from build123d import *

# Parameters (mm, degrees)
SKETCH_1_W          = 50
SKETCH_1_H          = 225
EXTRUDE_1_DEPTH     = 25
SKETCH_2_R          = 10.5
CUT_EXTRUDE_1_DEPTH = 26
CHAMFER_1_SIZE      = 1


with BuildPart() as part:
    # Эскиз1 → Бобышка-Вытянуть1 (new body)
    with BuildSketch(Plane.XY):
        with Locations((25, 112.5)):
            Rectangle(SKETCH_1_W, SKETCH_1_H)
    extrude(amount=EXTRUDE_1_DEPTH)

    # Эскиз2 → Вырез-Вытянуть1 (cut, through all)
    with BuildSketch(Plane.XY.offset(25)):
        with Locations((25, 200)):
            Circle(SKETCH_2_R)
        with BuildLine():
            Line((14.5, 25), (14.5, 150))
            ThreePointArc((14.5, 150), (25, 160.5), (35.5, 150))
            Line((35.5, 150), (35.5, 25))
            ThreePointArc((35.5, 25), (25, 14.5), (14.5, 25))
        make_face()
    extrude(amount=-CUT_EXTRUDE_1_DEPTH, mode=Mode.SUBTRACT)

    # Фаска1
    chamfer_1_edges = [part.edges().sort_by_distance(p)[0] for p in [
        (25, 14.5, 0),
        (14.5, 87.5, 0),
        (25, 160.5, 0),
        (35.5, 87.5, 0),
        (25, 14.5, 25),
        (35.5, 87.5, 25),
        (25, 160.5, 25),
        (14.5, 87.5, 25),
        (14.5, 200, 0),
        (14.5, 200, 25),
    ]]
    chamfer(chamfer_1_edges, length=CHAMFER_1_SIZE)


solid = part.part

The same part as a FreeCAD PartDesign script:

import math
import FreeCAD as App
import Part
import Sketcher


def edges_at(feature, points):
    """Names of the edges that pass closest to the given points."""
    edges = feature.Shape.Edges
    near = lambda p: min(range(len(edges)), key=lambda i: edges[i].distToShape(Part.Vertex(*p))[0])
    return sorted({f"Edge{near(p) + 1}" for p in points})

doc = App.newDocument("Part")
body = doc.addObject("PartDesign::Body", "Body")

# Sketch on XY plane
sketch1 = body.newObject("Sketcher::SketchObject", "Sketch")
sketch1.AttachmentSupport = (doc.getObject("XY_Plane"), [""])
sketch1.MapMode = "FlatFace"
sketch1.addGeometry(Part.LineSegment(App.Vector(0, 225, 0), App.Vector(0, 0, 0)), False)
sketch1.addGeometry(Part.LineSegment(App.Vector(0, 0, 0), App.Vector(50, 0, 0)), False)
sketch1.addGeometry(Part.LineSegment(App.Vector(50, 0, 0), App.Vector(50, 225, 0)), False)
sketch1.addGeometry(Part.LineSegment(App.Vector(50, 225, 0), App.Vector(0, 225, 0)), False)
sketch1.addConstraint(Sketcher.Constraint("Coincident", 0, 2, 1, 1))
sketch1.addConstraint(Sketcher.Constraint("Coincident", 1, 2, 2, 1))
sketch1.addConstraint(Sketcher.Constraint("Coincident", 2, 2, 3, 1))
sketch1.addConstraint(Sketcher.Constraint("Coincident", 3, 2, 0, 1))
sketch1.addConstraint(Sketcher.Constraint("Vertical", 0))
sketch1.addConstraint(Sketcher.Constraint("Horizontal", 1))
sketch1.addConstraint(Sketcher.Constraint("Vertical", 2))
sketch1.addConstraint(Sketcher.Constraint("Horizontal", 3))
sketch1.addConstraint(Sketcher.Constraint("Coincident", 0, 2, -1, 1))
sketch1.addConstraint(Sketcher.Constraint("DistanceX", 1, 1, 1, 2, 50.0))
sketch1.addConstraint(Sketcher.Constraint("DistanceY", 0, 2, 0, 1, 225.0))
pad1 = body.newObject("PartDesign::Pad", "Pad")
pad1.Profile = sketch1
pad1.Length = 25

# Sketch on XY plane
sketch2 = body.newObject("Sketcher::SketchObject", "Sketch001")
sketch2.AttachmentSupport = (doc.getObject("XY_Plane"), [""])
sketch2.MapMode = "FlatFace"
sketch2.AttachmentOffset = App.Placement(App.Vector(0, 0, 25), App.Rotation())
sketch2.addGeometry(Part.Circle(App.Vector(25, 200, 0), App.Vector(0, 0, 1), 10.5), False)
sketch2.addGeometry(Part.LineSegment(App.Vector(14.5, 150, 0), App.Vector(14.5, 25, 0)), False)
sketch2.addGeometry(Part.ArcOfCircle(Part.Circle(App.Vector(25, 25, 0), App.Vector(0, 0, 1), 10.5), math.radians(180), math.radians(360)), False)
sketch2.addGeometry(Part.LineSegment(App.Vector(35.5, 25, 0), App.Vector(35.5, 150, 0)), False)
sketch2.addGeometry(Part.ArcOfCircle(Part.Circle(App.Vector(25, 150, 0), App.Vector(0, 0, 1), 10.5), math.radians(0), math.radians(180)), False)
sketch2.addConstraint(Sketcher.Constraint("Tangent", 1, 2, 2, 1))
sketch2.addConstraint(Sketcher.Constraint("Tangent", 2, 2, 3, 1))
sketch2.addConstraint(Sketcher.Constraint("Tangent", 3, 2, 4, 1))
sketch2.addConstraint(Sketcher.Constraint("Tangent", 4, 2, 1, 1))
sketch2.addConstraint(Sketcher.Constraint("Vertical", 1))
sketch2.addConstraint(Sketcher.Constraint("Vertical", 3))
sketch2.addConstraint(Sketcher.Constraint("Equal", 0, 2))
sketch2.addConstraint(Sketcher.Constraint("Vertical", 0, 3, 2, 3))
sketch2.addConstraint(Sketcher.Constraint("Diameter", 0, 21.0))
sketch2.addConstraint(Sketcher.Constraint("DistanceY", 1, 2, 1, 1, 125.0))
sketch2.addConstraint(Sketcher.Constraint("DistanceX", -1, 1, 0, 3, 25.0))
sketch2.addConstraint(Sketcher.Constraint("DistanceY", -1, 1, 0, 3, 200.0))
sketch2.addConstraint(Sketcher.Constraint("DistanceY", -1, 1, 2, 3, 25.0))
pocket1 = body.newObject("PartDesign::Pocket", "Pocket")
pocket1.Profile = sketch2
pocket1.Type = "ThroughAll"
doc.recompute()

chamfer = body.newObject("PartDesign::Chamfer", "Chamfer")
chamfer.Base = (pocket1, edges_at(pocket1, [
    (25, 14.5, 0),
    (14.5, 87.5, 0),
    (25, 160.5, 0),
    (35.5, 87.5, 0),
    (25, 14.5, 25),
    (35.5, 87.5, 25),
    (25, 160.5, 25),
    (14.5, 87.5, 25),
    (14.5, 200, 0),
    (14.5, 200, 25),
]))
chamfer.Size = 1

doc.recompute()
